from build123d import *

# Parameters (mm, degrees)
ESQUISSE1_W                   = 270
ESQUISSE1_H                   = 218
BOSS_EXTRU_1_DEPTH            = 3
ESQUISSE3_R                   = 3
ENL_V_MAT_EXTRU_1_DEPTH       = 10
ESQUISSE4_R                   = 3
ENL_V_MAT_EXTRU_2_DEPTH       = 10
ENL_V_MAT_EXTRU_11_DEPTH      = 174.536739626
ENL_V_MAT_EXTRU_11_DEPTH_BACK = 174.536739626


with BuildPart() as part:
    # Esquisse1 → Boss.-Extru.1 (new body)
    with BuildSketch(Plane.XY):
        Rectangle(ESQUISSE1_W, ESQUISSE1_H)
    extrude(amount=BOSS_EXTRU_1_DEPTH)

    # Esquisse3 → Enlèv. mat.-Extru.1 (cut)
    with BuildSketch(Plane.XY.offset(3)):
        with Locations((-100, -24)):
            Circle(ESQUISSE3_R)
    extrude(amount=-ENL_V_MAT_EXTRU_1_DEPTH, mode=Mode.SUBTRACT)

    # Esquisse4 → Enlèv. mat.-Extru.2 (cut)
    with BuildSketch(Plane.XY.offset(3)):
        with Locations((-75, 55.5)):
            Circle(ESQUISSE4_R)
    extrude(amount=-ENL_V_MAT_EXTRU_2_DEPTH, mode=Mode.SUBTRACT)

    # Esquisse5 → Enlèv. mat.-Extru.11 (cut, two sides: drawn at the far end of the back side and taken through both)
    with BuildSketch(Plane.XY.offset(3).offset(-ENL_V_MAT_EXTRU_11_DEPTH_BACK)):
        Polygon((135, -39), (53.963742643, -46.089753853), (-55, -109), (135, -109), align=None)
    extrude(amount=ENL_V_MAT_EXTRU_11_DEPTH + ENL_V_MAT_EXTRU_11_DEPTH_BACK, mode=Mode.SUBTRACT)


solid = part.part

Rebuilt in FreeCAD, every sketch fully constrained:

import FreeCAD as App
import Part
import Sketcher
Q = App.Units.Quantity


def add_polygon(sketch, points):
    """Adds a closed chain of lines whose ends are joined by coincident constraints."""
    first, n = sketch.GeometryCount, len(points)
    for a, b in zip(points, points[1:] + points[:1]):
        sketch.addGeometry(Part.LineSegment(App.Vector(*a, 0), App.Vector(*b, 0)), False)
    for i in range(n):
        sketch.addConstraint(Sketcher.Constraint("Coincident", first + i, 2, first + (i + 1) % n, 1))

doc = App.newDocument("Part")
body = doc.addObject("PartDesign::Body", "Body")

# Sketch on XY plane
sketch1 = doc.addObject("Sketcher::SketchObject", "Sketch")
body.addObject(sketch1)
sketch1.AttachmentSupport = (doc.XY_Plane, [""])
sketch1.MapMode = "FlatFace"
add_polygon(sketch1, [(-135, 109), (-135, -109), (135, -109), (135, 109)])  # lines 0-3
sketch1.addConstraint([
    Sketcher.Constraint("Vertical", 0),
    Sketcher.Constraint("Horizontal", 1),
    Sketcher.Constraint("Vertical", 2),
    Sketcher.Constraint("Horizontal", 3),
    Sketcher.Constraint("Symmetric", 0, 2, 2, 2, -1, 1),
    Sketcher.Constraint("DistanceX", 1, 1, 1, 2, Q("270 mm")),
    Sketcher.Constraint("DistanceY", 0, 2, 0, 1, Q("218 mm")),
])
pad1 = doc.addObject("PartDesign::Pad", "Pad")
body.addObject(pad1)
pad1.Profile = sketch1
pad1.Length = 3

# Sketch on XY plane
sketch2 = doc.addObject("Sketcher::SketchObject", "Sketch001")
body.addObject(sketch2)
sketch2.AttachmentSupport = (doc.XY_Plane, [""])
sketch2.MapMode = "FlatFace"
sketch2.AttachmentOffset = App.Placement(App.Vector(0, 0, 3), App.Rotation())
sketch2.addGeometry(Part.Circle(App.Vector(-100, -24, 0), App.Vector(0, 0, 1), 3), False)
sketch2.addConstraint([
    Sketcher.Constraint("Diameter", 0, Q("6 mm")),
    Sketcher.Constraint("DistanceX", 0, 3, -1, 1, Q("100 mm")),
    Sketcher.Constraint("DistanceY", 0, 3, -1, 1, Q("24 mm")),
])
pocket1 = doc.addObject("PartDesign::Pocket", "Pocket")
body.addObject(pocket1)
pocket1.Profile = sketch2
pocket1.Length = 10

# Sketch on XY plane
sketch3 = doc.addObject("Sketcher::SketchObject", "Sketch002")
body.addObject(sketch3)
sketch3.AttachmentSupport = (doc.XY_Plane, [""])
sketch3.MapMode = "FlatFace"
sketch3.AttachmentOffset = App.Placement(App.Vector(0, 0, 3), App.Rotation())
sketch3.addGeometry(Part.Circle(App.Vector(-75, 55.5, 0), App.Vector(0, 0, 1), 3), False)
sketch3.addConstraint([
    Sketcher.Constraint("Diameter", 0, Q("6 mm")),
    Sketcher.Constraint("DistanceX", 0, 3, -1, 1, Q("75 mm")),
    Sketcher.Constraint("DistanceY", -1, 1, 0, 3, Q("55.5 mm")),
])
pocket2 = doc.addObject("PartDesign::Pocket", "Pocket001")
body.addObject(pocket2)
pocket2.Profile = sketch3
pocket2.Length = 10

# Sketch on XY plane
sketch4 = doc.addObject("Sketcher::SketchObject", "Sketch003")
body.addObject(sketch4)
sketch4.AttachmentSupport = (doc.XY_Plane, [""])
sketch4.MapMode = "FlatFace"
sketch4.AttachmentOffset = App.Placement(App.Vector(0, 0, 3), App.Rotation())
add_polygon(sketch4, [(135, -39), (54, -46), (-55, -109), (135, -109)])  # lines 0-3
sketch4.addConstraint([
    Sketcher.Constraint("Horizontal", 2),
    Sketcher.Constraint("Vertical", 3),
    Sketcher.Constraint("DistanceX", 2, 1, 2, 2, Q("190 mm")),
    Sketcher.Constraint("DistanceY", 3, 1, 3, 2, Q("70 mm")),
    Sketcher.Constraint("Angle", 0, Q("-175 deg")),
    Sketcher.Constraint("Angle", 1, Q("-150 deg")),
    Sketcher.Constraint("DistanceX", 1, 2, -1, 1, Q("55 mm")),
    Sketcher.Constraint("DistanceY", 1, 2, -1, 1, Q("109 mm")),
])
pocket3 = doc.addObject("PartDesign::Pocket", "Pocket002")
body.addObject(pocket3)
pocket3.Profile = sketch4
pocket3.Type = "ThroughAll"
pocket3.Midplane = True

doc.recompute()
